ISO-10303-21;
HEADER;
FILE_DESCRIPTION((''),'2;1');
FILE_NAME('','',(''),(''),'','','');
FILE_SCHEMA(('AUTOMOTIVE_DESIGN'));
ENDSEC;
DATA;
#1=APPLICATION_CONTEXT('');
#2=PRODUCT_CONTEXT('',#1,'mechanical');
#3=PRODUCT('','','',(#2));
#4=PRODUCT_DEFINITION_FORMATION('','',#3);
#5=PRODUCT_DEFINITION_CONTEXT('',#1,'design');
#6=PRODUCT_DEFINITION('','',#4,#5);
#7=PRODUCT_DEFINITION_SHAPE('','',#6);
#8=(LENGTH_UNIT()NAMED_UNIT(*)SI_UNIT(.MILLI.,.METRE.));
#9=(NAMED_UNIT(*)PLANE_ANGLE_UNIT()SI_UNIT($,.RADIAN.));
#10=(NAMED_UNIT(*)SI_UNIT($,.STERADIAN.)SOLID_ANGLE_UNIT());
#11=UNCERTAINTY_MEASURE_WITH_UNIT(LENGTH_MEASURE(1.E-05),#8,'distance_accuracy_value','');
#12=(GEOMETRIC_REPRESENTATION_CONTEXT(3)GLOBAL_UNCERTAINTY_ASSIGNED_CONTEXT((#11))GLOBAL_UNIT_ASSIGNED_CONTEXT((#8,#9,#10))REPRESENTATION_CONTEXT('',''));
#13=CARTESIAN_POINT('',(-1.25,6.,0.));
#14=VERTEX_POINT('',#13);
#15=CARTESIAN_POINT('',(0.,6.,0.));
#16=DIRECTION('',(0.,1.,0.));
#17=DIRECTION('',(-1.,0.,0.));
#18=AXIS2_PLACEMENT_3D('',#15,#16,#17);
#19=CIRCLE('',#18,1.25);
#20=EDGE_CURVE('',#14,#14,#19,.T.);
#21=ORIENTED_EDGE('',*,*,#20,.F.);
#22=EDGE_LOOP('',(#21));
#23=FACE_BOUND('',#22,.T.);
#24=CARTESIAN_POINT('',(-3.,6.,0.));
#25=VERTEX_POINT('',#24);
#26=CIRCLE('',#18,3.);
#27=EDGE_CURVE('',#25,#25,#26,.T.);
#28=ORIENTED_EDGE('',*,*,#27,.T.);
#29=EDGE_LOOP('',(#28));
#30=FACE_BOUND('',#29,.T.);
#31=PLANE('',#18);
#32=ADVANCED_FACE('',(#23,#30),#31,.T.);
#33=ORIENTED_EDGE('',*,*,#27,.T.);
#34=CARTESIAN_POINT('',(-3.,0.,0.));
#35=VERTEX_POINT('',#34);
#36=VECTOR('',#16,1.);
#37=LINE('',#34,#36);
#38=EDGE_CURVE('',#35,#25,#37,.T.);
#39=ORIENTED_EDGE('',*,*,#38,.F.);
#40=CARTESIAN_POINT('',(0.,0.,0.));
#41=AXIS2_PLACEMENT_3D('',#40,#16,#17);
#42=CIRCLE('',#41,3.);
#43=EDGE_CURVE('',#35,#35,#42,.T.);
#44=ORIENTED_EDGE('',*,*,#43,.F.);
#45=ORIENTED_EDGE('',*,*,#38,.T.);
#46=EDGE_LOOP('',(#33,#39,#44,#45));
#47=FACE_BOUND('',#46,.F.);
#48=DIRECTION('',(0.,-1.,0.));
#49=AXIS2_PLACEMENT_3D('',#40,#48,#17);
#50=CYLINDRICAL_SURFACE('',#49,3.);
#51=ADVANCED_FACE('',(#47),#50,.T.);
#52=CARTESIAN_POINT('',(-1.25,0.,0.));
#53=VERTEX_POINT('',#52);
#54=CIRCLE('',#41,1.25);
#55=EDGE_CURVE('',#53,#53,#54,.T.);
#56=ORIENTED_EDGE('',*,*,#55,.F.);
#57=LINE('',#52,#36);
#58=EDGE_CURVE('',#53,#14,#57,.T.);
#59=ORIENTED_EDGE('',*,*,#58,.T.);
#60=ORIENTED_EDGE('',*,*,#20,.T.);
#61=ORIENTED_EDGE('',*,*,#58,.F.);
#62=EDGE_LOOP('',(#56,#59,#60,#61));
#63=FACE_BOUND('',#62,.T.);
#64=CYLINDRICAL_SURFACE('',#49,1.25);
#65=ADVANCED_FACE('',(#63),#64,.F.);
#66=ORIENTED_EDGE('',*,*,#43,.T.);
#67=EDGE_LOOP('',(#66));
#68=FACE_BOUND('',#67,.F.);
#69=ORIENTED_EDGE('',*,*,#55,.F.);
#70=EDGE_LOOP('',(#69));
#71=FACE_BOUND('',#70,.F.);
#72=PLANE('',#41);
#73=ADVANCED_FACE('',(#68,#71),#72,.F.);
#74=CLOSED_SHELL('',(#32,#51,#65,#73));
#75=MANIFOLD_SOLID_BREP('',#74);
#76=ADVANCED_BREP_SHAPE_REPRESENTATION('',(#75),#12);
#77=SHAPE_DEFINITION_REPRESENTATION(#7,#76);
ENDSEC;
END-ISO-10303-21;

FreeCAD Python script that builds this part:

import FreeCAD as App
import Part
import Sketcher
from FreeCAD import Vector
Q = App.Units.Quantity

doc = App.newDocument("Part")
body = doc.addObject("PartDesign::Body", "Body")

# Sketch on XZ plane
sketch1 = body.newObject("Sketcher::SketchObject", "Sketch")
sketch1.AttachmentSupport = (doc.getObject("XZ_Plane"), [""])
sketch1.MapMode = "FlatFace"
sketch1.addGeometry([
    Part.Circle(Vector(0, 0, 0), Vector(0, 0, 1), 3),
    Part.Circle(Vector(0, 0, 0), Vector(0, 0, 1), 1.25),
], False)
sketch1.addConstraint([
    Sketcher.Constraint("Coincident", 0, 3, -1, 1),
    Sketcher.Constraint("Coincident", 1, 3, -1, 1),
    Sketcher.Constraint("Diameter", 0, Q("6 mm")),
    Sketcher.Constraint("Diameter", 1, Q("2.5 mm")),
])
pad1 = body.newObject("PartDesign::Pad", "Pad")
pad1.Profile = sketch1
pad1.Length = 6
pad1.Reversed = True

doc.recompute()
